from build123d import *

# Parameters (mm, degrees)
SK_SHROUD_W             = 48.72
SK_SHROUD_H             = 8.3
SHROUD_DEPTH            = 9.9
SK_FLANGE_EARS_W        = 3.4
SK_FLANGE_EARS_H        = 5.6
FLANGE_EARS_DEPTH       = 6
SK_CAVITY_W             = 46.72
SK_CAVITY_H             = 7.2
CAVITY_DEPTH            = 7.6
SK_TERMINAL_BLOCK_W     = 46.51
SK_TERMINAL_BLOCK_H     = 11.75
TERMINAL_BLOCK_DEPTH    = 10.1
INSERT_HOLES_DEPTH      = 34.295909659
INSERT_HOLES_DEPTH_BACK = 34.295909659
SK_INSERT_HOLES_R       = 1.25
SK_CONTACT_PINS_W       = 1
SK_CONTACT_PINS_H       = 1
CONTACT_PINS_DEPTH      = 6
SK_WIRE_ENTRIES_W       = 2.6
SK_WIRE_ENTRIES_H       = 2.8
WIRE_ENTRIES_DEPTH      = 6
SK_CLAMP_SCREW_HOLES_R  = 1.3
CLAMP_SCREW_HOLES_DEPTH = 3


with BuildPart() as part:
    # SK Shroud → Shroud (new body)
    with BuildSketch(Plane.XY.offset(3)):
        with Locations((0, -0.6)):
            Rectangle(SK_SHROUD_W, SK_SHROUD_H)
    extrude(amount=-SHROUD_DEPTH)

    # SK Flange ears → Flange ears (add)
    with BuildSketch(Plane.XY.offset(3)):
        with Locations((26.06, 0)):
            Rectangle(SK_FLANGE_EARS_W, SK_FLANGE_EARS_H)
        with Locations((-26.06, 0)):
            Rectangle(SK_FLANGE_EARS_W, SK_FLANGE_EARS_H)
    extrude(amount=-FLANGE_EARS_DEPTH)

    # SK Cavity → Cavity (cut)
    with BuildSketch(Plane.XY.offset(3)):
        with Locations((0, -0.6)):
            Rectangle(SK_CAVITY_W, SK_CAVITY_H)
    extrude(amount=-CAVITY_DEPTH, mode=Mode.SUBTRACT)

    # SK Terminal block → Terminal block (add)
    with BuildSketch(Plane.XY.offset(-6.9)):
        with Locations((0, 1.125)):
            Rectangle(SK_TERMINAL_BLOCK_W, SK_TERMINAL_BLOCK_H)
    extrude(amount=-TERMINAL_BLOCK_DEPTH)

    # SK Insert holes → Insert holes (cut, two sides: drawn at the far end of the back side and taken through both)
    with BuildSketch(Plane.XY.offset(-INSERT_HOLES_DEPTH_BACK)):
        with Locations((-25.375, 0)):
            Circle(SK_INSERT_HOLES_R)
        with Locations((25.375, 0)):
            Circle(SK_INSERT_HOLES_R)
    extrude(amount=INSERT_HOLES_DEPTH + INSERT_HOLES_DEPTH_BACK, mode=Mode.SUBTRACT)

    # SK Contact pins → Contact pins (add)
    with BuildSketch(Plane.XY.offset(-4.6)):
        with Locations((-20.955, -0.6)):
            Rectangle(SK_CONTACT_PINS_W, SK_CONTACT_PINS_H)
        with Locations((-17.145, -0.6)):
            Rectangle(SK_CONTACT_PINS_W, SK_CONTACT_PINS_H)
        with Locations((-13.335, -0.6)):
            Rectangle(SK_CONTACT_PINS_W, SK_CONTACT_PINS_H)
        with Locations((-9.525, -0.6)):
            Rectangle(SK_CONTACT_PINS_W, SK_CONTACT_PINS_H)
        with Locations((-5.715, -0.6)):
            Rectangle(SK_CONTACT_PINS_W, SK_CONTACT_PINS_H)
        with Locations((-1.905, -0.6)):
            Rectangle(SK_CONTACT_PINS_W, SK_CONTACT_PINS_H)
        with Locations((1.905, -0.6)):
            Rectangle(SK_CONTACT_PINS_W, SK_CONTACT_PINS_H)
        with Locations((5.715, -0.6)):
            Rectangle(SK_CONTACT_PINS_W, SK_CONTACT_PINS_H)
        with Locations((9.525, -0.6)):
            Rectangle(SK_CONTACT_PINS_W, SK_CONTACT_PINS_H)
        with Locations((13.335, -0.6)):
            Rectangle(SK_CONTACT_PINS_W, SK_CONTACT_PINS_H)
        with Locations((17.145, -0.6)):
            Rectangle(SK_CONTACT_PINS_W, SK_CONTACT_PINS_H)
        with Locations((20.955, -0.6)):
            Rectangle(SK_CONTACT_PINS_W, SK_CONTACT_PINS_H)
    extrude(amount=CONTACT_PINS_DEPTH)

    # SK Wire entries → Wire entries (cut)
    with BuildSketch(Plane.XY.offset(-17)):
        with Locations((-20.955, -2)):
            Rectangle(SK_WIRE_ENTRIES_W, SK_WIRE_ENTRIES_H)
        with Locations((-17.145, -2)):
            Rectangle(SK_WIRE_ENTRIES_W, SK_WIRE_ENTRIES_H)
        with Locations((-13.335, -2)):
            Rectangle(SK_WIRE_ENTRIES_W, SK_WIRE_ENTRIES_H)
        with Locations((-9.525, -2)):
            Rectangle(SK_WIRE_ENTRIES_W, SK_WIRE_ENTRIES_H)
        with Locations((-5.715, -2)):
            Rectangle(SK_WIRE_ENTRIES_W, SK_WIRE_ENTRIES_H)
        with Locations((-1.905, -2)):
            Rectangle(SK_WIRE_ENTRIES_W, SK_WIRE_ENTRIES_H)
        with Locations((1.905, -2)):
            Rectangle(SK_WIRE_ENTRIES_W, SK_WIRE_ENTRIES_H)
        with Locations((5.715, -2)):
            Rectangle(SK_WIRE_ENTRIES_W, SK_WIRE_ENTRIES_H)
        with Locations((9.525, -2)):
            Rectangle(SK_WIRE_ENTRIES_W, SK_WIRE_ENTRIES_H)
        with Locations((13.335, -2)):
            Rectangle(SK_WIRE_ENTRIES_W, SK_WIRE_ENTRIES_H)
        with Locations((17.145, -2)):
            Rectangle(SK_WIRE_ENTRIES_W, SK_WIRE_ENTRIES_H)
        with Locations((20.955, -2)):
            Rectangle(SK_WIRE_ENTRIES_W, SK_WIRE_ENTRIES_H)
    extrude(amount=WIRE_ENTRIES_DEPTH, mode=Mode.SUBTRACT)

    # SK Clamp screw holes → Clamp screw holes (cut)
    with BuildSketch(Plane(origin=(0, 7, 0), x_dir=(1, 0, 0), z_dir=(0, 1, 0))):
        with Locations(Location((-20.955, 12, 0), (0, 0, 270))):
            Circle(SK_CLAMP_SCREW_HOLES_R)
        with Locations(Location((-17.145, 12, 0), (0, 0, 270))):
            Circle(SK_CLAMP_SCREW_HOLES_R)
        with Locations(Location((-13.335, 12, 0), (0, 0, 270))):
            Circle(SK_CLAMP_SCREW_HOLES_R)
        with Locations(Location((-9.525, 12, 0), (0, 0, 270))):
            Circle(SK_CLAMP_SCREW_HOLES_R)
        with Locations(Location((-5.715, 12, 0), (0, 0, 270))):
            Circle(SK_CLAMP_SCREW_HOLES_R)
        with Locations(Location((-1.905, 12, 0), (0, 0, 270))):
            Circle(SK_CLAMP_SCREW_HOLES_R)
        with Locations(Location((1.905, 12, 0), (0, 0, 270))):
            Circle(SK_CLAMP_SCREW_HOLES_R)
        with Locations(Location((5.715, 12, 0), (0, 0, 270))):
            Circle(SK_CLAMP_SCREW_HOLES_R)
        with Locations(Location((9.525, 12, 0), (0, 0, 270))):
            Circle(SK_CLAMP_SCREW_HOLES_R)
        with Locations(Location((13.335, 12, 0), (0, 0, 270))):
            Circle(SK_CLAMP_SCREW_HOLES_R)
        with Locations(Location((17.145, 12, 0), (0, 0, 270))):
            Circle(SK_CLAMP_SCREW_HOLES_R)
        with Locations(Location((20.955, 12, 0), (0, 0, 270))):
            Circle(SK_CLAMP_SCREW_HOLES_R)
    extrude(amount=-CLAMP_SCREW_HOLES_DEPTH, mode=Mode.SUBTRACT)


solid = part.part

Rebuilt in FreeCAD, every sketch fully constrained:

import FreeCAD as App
import Part
import Sketcher
from FreeCAD import Vector
Q = App.Units.Quantity

doc = App.newDocument("Part")
params = doc.addObject("Spreadsheet::Sheet", "Params")
for row, (alias, value) in enumerate([
    ("sketch1_height", "8.3 mm"),
    ("sketch1_width", "48.72 mm"),
    ("pad1_length", "9.9 mm"),
    ("sketch2_width", "3.4 mm"),
    ("sketch2_height", "5.6 mm"),
    ("pad2_length", "6 mm"),
    ("sketch3_height", "7.2 mm"),
    ("sketch3_width", "46.72 mm"),
    ("pocket1_length", "7.6 mm"),
    ("sketch4_width", "46.51 mm"),
    ("sketch4_height", "11.75 mm"),
    ("pad3_length", "10.1 mm"),
    ("sketch5_diameter", "2.5 mm"),
    ("sketch6_width", "1 mm"),
    ("pad4_length", "6 mm"),
    ("sketch7_width", "2.6 mm"),
    ("sketch7_height", "2.8 mm"),
    ("pocket3_length", "6 mm"),
    ("sketch8_diameter", "2.6 mm"),
    ("pocket4_length", "3 mm"),
], start=1):
    params.set(f"A{row}", alias)
    params.set(f"B{row}", "=" + value)
    params.setAlias(f"B{row}", alias)

body = doc.addObject("PartDesign::Body", "Body")

sketch1 = body.newObject("Sketcher::SketchObject", "Sketch")
sketch1.AttachmentSupport = (doc.getObject("XY_Plane"), [""])
sketch1.MapMode = "FlatFace"
sketch1.AttachmentOffset = App.Placement(Vector(0, 0, 3), App.Rotation())
sketch1.addGeometry(Part.LineSegment(Vector(-24, 4, 0), Vector(-24, -5, 0)), False)
sketch1.addGeometry(Part.LineSegment(Vector(-24, -5, 0), Vector(24, -5, 0)), False)
sketch1.addGeometry(Part.LineSegment(Vector(24, -5, 0), Vector(24, 4, 0)), False)
sketch1.addGeometry(Part.LineSegment(Vector(24, 4, 0), Vector(-24, 4, 0)), False)
sketch1.addConstraint(Sketcher.Constraint("Coincident", 0, 2, 1, 1))
sketch1.addConstraint(Sketcher.Constraint("Coincident", 1, 2, 2, 1))
sketch1.addConstraint(Sketcher.Constraint("Coincident", 2, 2, 3, 1))
sketch1.addConstraint(Sketcher.Constraint("Coincident", 3, 2, 0, 1))
sketch1.addConstraint(Sketcher.Constraint("Vertical", 0))
sketch1.addConstraint(Sketcher.Constraint("Horizontal", 1))
sketch1.addConstraint(Sketcher.Constraint("Vertical", 2))
sketch1.addConstraint(Sketcher.Constraint("Horizontal", 3))
sketch1.addConstraint(Sketcher.Constraint("DistanceY", 0, 2, 0, 1, Q("8.3 mm")))
sketch1.addConstraint(Sketcher.Constraint("DistanceX", 1, 1, 1, 2, Q("48.72 mm")))
sketch1.addConstraint(Sketcher.Constraint("DistanceX", 0, 2, -1, 1, Q("24.36 mm")))
sketch1.addConstraint(Sketcher.Constraint("DistanceY", 0, 2, -1, 1, Q("4.75 mm")))
sketch1.setExpression("Constraints[8]", "Params.sketch1_height")
sketch1.setExpression("Constraints[9]", "Params.sketch1_width")
pad1 = body.newObject("PartDesign::Pad", "Pad")
pad1.Profile = sketch1
pad1.setExpression("Length", "Params.pad1_length")
pad1.Reversed = True

sketch2 = body.newObject("Sketcher::SketchObject", "Sketch001")
sketch2.AttachmentSupport = (doc.getObject("XY_Plane"), [""])
sketch2.MapMode = "FlatFace"
sketch2.AttachmentOffset = App.Placement(Vector(0, 0, 3), App.Rotation())
sketch2.addGeometry(Part.LineSegment(Vector(24.4, 2.8, 0), Vector(24.4, -2.8, 0)), False)
sketch2.addGeometry(Part.LineSegment(Vector(24.4, -2.8, 0), Vector(27.8, -2.8, 0)), False)
sketch2.addGeometry(Part.LineSegment(Vector(27.8, -2.8, 0), Vector(27.8, 2.8, 0)), False)
sketch2.addGeometry(Part.LineSegment(Vector(27.8, 2.8, 0), Vector(24.4, 2.8, 0)), False)
sketch2.addGeometry(Part.LineSegment(Vector(-27.8, 2.8, 0), Vector(-27.8, -2.8, 0)), False)
sketch2.addGeometry(Part.LineSegment(Vector(-27.8, -2.8, 0), Vector(-24.4, -2.8, 0)), False)
sketch2.addGeometry(Part.LineSegment(Vector(-24.4, -2.8, 0), Vector(-24.4, 2.8, 0)), False)
sketch2.addGeometry(Part.LineSegment(Vector(-24.4, 2.8, 0), Vector(-27.8, 2.8, 0)), False)
sketch2.addConstraint(Sketcher.Constraint("Coincident", 0, 2, 1, 1))
sketch2.addConstraint(Sketcher.Constraint("Coincident", 1, 2, 2, 1))
sketch2.addConstraint(Sketcher.Constraint("Coincident", 2, 2, 3, 1))
sketch2.addConstraint(Sketcher.Constraint("Coincident", 3, 2, 0, 1))
sketch2.addConstraint(Sketcher.Constraint("Coincident", 4, 2, 5, 1))
sketch2.addConstraint(Sketcher.Constraint("Coincident", 5, 2, 6, 1))
sketch2.addConstraint(Sketcher.Constraint("Coincident", 6, 2, 7, 1))
sketch2.addConstraint(Sketcher.Constraint("Coincident", 7, 2, 4, 1))
sketch2.addConstraint(Sketcher.Constraint("Vertical", 0))
sketch2.addConstraint(Sketcher.Constraint("Horizontal", 1))
sketch2.addConstraint(Sketcher.Constraint("Vertical", 2))
sketch2.addConstraint(Sketcher.Constraint("Horizontal", 3))
sketch2.addConstraint(Sketcher.Constraint("Vertical", 4))
sketch2.addConstraint(Sketcher.Constraint("Horizontal", 5))
sketch2.addConstraint(Sketcher.Constraint("Vertical", 6))
sketch2.addConstraint(Sketcher.Constraint("Horizontal", 7))
sketch2.addConstraint(Sketcher.Constraint("Symmetric", 2, 2, 4, 2, -1, 1))
sketch2.addConstraint(Sketcher.Constraint("Symmetric", 0, 2, 6, 2, -1, 1))
sketch2.addConstraint(Sketcher.Constraint("Horizontal", 1, 2, 4, 2))
sketch2.addConstraint(Sketcher.Constraint("DistanceX", 1, 1, 1, 2, Q("3.4 mm")))
sketch2.addConstraint(Sketcher.Constraint("DistanceY", 0, 2, 0, 1, Q("5.6 mm")))
sketch2.addConstraint(Sketcher.Constraint("DistanceX", -1, 1, 0, 2, Q("24.36 mm")))
sketch2.setExpression("Constraints[19]", "Params.sketch2_width")
sketch2.setExpression("Constraints[20]", "Params.sketch2_height")
pad2 = body.newObject("PartDesign::Pad", "Pad001")
pad2.Profile = sketch2
pad2.setExpression("Length", "Params.pad2_length")
pad2.Reversed = True

sketch3 = body.newObject("Sketcher::SketchObject", "Sketch002")
sketch3.AttachmentSupport = (doc.getObject("XY_Plane"), [""])
sketch3.MapMode = "FlatFace"
sketch3.AttachmentOffset = App.Placement(Vector(0, 0, 3), App.Rotation())
sketch3.addGeometry(Part.LineSegment(Vector(-23, 3, 0), Vector(-23, -4, 0)), False)
sketch3.addGeometry(Part.LineSegment(Vector(-23, -4, 0), Vector(23, -4, 0)), False)
sketch3.addGeometry(Part.LineSegment(Vector(23, -4, 0), Vector(23, 3, 0)), False)
sketch3.addGeometry(Part.LineSegment(Vector(23, 3, 0), Vector(-23, 3, 0)), False)
sketch3.addConstraint(Sketcher.Constraint("Coincident", 0, 2, 1, 1))
sketch3.addConstraint(Sketcher.Constraint("Coincident", 1, 2, 2, 1))
sketch3.addConstraint(Sketcher.Constraint("Coincident", 2, 2, 3, 1))
sketch3.addConstraint(Sketcher.Constraint("Coincident", 3, 2, 0, 1))
sketch3.addConstraint(Sketcher.Constraint("Vertical", 0))
sketch3.addConstraint(Sketcher.Constraint("Horizontal", 1))
sketch3.addConstraint(Sketcher.Constraint("Vertical", 2))
sketch3.addConstraint(Sketcher.Constraint("Horizontal", 3))
sketch3.addConstraint(Sketcher.Constraint("DistanceY", 0, 2, 0, 1, Q("7.2 mm")))
sketch3.addConstraint(Sketcher.Constraint("DistanceY", -1, 1, 2, 2, Q("3 mm")))
sketch3.addConstraint(Sketcher.Constraint("DistanceX", 1, 1, 1, 2, Q("46.72 mm")))
sketch3.addConstraint(Sketcher.Constraint("DistanceX", 0, 2, -1, 1, Q("23.36 mm")))
sketch3.setExpression("Constraints[8]", "Params.sketch3_height")
sketch3.setExpression("Constraints[10]", "Params.sketch3_width")
pocket1 = body.newObject("PartDesign::Pocket", "Pocket")
pocket1.Profile = sketch3
pocket1.setExpression("Length", "Params.pocket1_length")

sketch4 = body.newObject("Sketcher::SketchObject", "Sketch003")
sketch4.AttachmentSupport = (doc.getObject("XY_Plane"), [""])
sketch4.MapMode = "FlatFace"
sketch4.AttachmentOffset = App.Placement(Vector(0, 0, -6.9), App.Rotation())
sketch4.addGeometry(Part.LineSegment(Vector(-23, 7, 0), Vector(-23, -5, 0)), False)
sketch4.addGeometry(Part.LineSegment(Vector(-23, -5, 0), Vector(23, -5, 0)), False)
sketch4.addGeometry(Part.LineSegment(Vector(23, -5, 0), Vector(23, 7, 0)), False)
sketch4.addGeometry(Part.LineSegment(Vector(23, 7, 0), Vector(-23, 7, 0)), False)
sketch4.addConstraint(Sketcher.Constraint("Coincident", 0, 2, 1, 1))
sketch4.addConstraint(Sketcher.Constraint("Coincident", 1, 2, 2, 1))
sketch4.addConstraint(Sketcher.Constraint("Coincident", 2, 2, 3, 1))
sketch4.addConstraint(Sketcher.Constraint("Coincident", 3, 2, 0, 1))
sketch4.addConstraint(Sketcher.Constraint("Vertical", 0))
sketch4.addConstraint(Sketcher.Constraint("Horizontal", 1))
sketch4.addConstraint(Sketcher.Constraint("Vertical", 2))
sketch4.addConstraint(Sketcher.Constraint("Horizontal", 3))
sketch4.addConstraint(Sketcher.Constraint("DistanceY", -1, 1, 2, 2, Q("7 mm")))
sketch4.addConstraint(Sketcher.Constraint("DistanceX", 1, 1, 1, 2, Q("46.51 mm")))
sketch4.addConstraint(Sketcher.Constraint("DistanceY", 0, 2, 0, 1, Q("11.75 mm")))
sketch4.addConstraint(Sketcher.Constraint("DistanceX", 0, 2, -1, 1, Q("23.255 mm")))
sketch4.setExpression("Constraints[9]", "Params.sketch4_width")
sketch4.setExpression("Constraints[10]", "Params.sketch4_height")
pad3 = body.newObject("PartDesign::Pad", "Pad002")
pad3.Profile = sketch4
pad3.setExpression("Length", "Params.pad3_length")
pad3.Reversed = True

sketch5 = body.newObject("Sketcher::SketchObject", "Sketch004")
sketch5.AttachmentSupport = (doc.getObject("XY_Plane"), [""])
sketch5.MapMode = "FlatFace"
sketch5.addGeometry(Part.Circle(Vector(-25.4, 0, 0), Vector(0, 0, 1), 1.2), False)
sketch5.addGeometry(Part.Circle(Vector(25.4, 0, 0), Vector(0, 0, 1), 1.2), False)
sketch5.addConstraint(Sketcher.Constraint("Equal", 0, 1))
sketch5.addConstraint(Sketcher.Constraint("Symmetric", 0, 3, 1, 3, -1, 1))
sketch5.addConstraint(Sketcher.Constraint("PointOnObject", 0, 3, -1))
sketch5.addConstraint(Sketcher.Constraint("Diameter", 0, Q("2.5 mm")))
sketch5.addConstraint(Sketcher.Constraint("DistanceX", 0, 3, 1, 3, Q("50.75 mm")))
sketch5.setExpression("Constraints[3]", "Params.sketch5_diameter")
pocket2 = body.newObject("PartDesign::Pocket", "Pocket001")
pocket2.Profile = sketch5
pocket2.Type = "ThroughAll"
pocket2.Midplane = True

sketch6 = body.newObject("Sketcher::SketchObject", "Sketch005")
sketch6.AttachmentSupport = (doc.getObject("XY_Plane"), [""])
sketch6.MapMode = "FlatFace"
sketch6.AttachmentOffset = App.Placement(Vector(0, 0, -4.6), App.Rotation())
sketch6.addGeometry(Part.LineSegment(Vector(-21.5, -0.1, 0), Vector(-21.5, -1.1, 0)), False)
sketch6.addGeometry(Part.LineSegment(Vector(-21.5, -1.1, 0), Vector(-20.5, -1.1, 0)), False)
sketch6.addGeometry(Part.LineSegment(Vector(-20.5, -1.1, 0), Vector(-20.5, -0.1, 0)), False)
sketch6.addGeometry(Part.LineSegment(Vector(-20.5, -0.1, 0), Vector(-21.5, -0.1, 0)), False)
sketch6.addGeometry(Part.LineSegment(Vector(-17.6, -0.1, 0), Vector(-17.6, -1.1, 0)), False)
sketch6.addGeometry(Part.LineSegment(Vector(-17.6, -1.1, 0), Vector(-16.6, -1.1, 0)), False)
sketch6.addGeometry(Part.LineSegment(Vector(-16.6, -1.1, 0), Vector(-16.6, -0.1, 0)), False)
sketch6.addGeometry(Part.LineSegment(Vector(-16.6, -0.1, 0), Vector(-17.6, -0.1, 0)), False)
sketch6.addGeometry(Part.LineSegment(Vector(-13.8, -0.1, 0), Vector(-13.8, -1.1, 0)), False)
sketch6.addGeometry(Part.LineSegment(Vector(-13.8, -1.1, 0), Vector(-12.8, -1.1, 0)), False)
sketch6.addGeometry(Part.LineSegment(Vector(-12.8, -1.1, 0), Vector(-12.8, -0.1, 0)), False)
sketch6.addGeometry(Part.LineSegment(Vector(-12.8, -0.1, 0), Vector(-13.8, -0.1, 0)), False)
sketch6.addGeometry(Part.LineSegment(Vector(-10, -0.1, 0), Vector(-10, -1.1, 0)), False)
sketch6.addGeometry(Part.LineSegment(Vector(-10, -1.1, 0), Vector(-9, -1.1, 0)), False)
sketch6.addGeometry(Part.LineSegment(Vector(-9, -1.1, 0), Vector(-9, -0.1, 0)), False)
sketch6.addGeometry(Part.LineSegment(Vector(-9, -0.1, 0), Vector(-10, -0.1, 0)), False)
sketch6.addGeometry(Part.LineSegment(Vector(-6.2, -0.1, 0), Vector(-6.2, -1.1, 0)), False)
sketch6.addGeometry(Part.LineSegment(Vector(-6.2, -1.1, 0), Vector(-5.2, -1.1, 0)), False)
sketch6.addGeometry(Part.LineSegment(Vector(-5.2, -1.1, 0), Vector(-5.2, -0.1, 0)), False)
sketch6.addGeometry(Part.LineSegment(Vector(-5.2, -0.1, 0), Vector(-6.2, -0.1, 0)), False)
sketch6.addGeometry(Part.LineSegment(Vector(-2.4, -0.1, 0), Vector(-2.4, -1.1, 0)), False)
sketch6.addGeometry(Part.LineSegment(Vector(-2.4, -1.1, 0), Vector(-1.4, -1.1, 0)), False)
sketch6.addGeometry(Part.LineSegment(Vector(-1.4, -1.1, 0), Vector(-1.4, -0.1, 0)), False)
sketch6.addGeometry(Part.LineSegment(Vector(-1.4, -0.1, 0), Vector(-2.4, -0.1, 0)), False)
sketch6.addGeometry(Part.LineSegment(Vector(1.4, -0.1, 0), Vector(1.4, -1.1, 0)), False)
sketch6.addGeometry(Part.LineSegment(Vector(1.4, -1.1, 0), Vector(2.4, -1.1, 0)), False)
sketch6.addGeometry(Part.LineSegment(Vector(2.4, -1.1, 0), Vector(2.4, -0.1, 0)), False)
sketch6.addGeometry(Part.LineSegment(Vector(2.4, -0.1, 0), Vector(1.4, -0.1, 0)), False)
sketch6.addGeometry(Part.LineSegment(Vector(5.2, -0.1, 0), Vector(5.2, -1.1, 0)), False)
sketch6.addGeometry(Part.LineSegment(Vector(5.2, -1.1, 0), Vector(6.2, -1.1, 0)), False)
sketch6.addGeometry(Part.LineSegment(Vector(6.2, -1.1, 0), Vector(6.2, -0.1, 0)), False)
sketch6.addGeometry(Part.LineSegment(Vector(6.2, -0.1, 0), Vector(5.2, -0.1, 0)), False)
sketch6.addGeometry(Part.LineSegment(Vector(9, -0.1, 0), Vector(9, -1.1, 0)), False)
sketch6.addGeometry(Part.LineSegment(Vector(9, -1.1, 0), Vector(10, -1.1, 0)), False)
sketch6.addGeometry(Part.LineSegment(Vector(10, -1.1, 0), Vector(10, -0.1, 0)), False)
sketch6.addGeometry(Part.LineSegment(Vector(10, -0.1, 0), Vector(9, -0.1, 0)), False)
sketch6.addGeometry(Part.LineSegment(Vector(12.8, -0.1, 0), Vector(12.8, -1.1, 0)), False)
sketch6.addGeometry(Part.LineSegment(Vector(12.8, -1.1, 0), Vector(13.8, -1.1, 0)), False)
sketch6.addGeometry(Part.LineSegment(Vector(13.8, -1.1, 0), Vector(13.8, -0.1, 0)), False)
sketch6.addGeometry(Part.LineSegment(Vector(13.8, -0.1, 0), Vector(12.8, -0.1, 0)), False)
sketch6.addGeometry(Part.LineSegment(Vector(16.6, -0.1, 0), Vector(16.6, -1.1, 0)), False)
sketch6.addGeometry(Part.LineSegment(Vector(16.6, -1.1, 0), Vector(17.6, -1.1, 0)), False)
sketch6.addGeometry(Part.LineSegment(Vector(17.6, -1.1, 0), Vector(17.6, -0.1, 0)), False)
sketch6.addGeometry(Part.LineSegment(Vector(17.6, -0.1, 0), Vector(16.6, -0.1, 0)), False)
sketch6.addGeometry(Part.LineSegment(Vector(20.5, -0.1, 0), Vector(20.5, -1.1, 0)), False)
sketch6.addGeometry(Part.LineSegment(Vector(20.5, -1.1, 0), Vector(21.5, -1.1, 0)), False)
sketch6.addGeometry(Part.LineSegment(Vector(21.5, -1.1, 0), Vector(21.5, -0.1, 0)), False)
sketch6.addGeometry(Part.LineSegment(Vector(21.5, -0.1, 0), Vector(20.5, -0.1, 0)), False)
sketch6.addConstraint(Sketcher.Constraint("Coincident", 0, 2, 1, 1))
sketch6.addConstraint(Sketcher.Constraint("Coincident", 1, 2, 2, 1))
sketch6.addConstraint(Sketcher.Constraint("Coincident", 2, 2, 3, 1))
sketch6.addConstraint(Sketcher.Constraint("Coincident", 3, 2, 0, 1))
sketch6.addConstraint(Sketcher.Constraint("Coincident", 4, 2, 5, 1))
sketch6.addConstraint(Sketcher.Constraint("Coincident", 5, 2, 6, 1))
sketch6.addConstraint(Sketcher.Constraint("Coincident", 6, 2, 7, 1))
sketch6.addConstraint(Sketcher.Constraint("Coincident", 7, 2, 4, 1))
sketch6.addConstraint(Sketcher.Constraint("Coincident", 8, 2, 9, 1))
sketch6.addConstraint(Sketcher.Constraint("Coincident", 9, 2, 10, 1))
sketch6.addConstraint(Sketcher.Constraint("Coincident", 10, 2, 11, 1))
sketch6.addConstraint(Sketcher.Constraint("Coincident", 11, 2, 8, 1))
sketch6.addConstraint(Sketcher.Constraint("Coincident", 12, 2, 13, 1))
sketch6.addConstraint(Sketcher.Constraint("Coincident", 13, 2, 14, 1))
sketch6.addConstraint(Sketcher.Constraint("Coincident", 14, 2, 15, 1))
sketch6.addConstraint(Sketcher.Constraint("Coincident", 15, 2, 12, 1))
sketch6.addConstraint(Sketcher.Constraint("Coincident", 16, 2, 17, 1))
sketch6.addConstraint(Sketcher.Constraint("Coincident", 17, 2, 18, 1))
sketch6.addConstraint(Sketcher.Constraint("Coincident", 18, 2, 19, 1))
sketch6.addConstraint(Sketcher.Constraint("Coincident", 19, 2, 16, 1))
sketch6.addConstraint(Sketcher.Constraint("Coincident", 20, 2, 21, 1))
sketch6.addConstraint(Sketcher.Constraint("Coincident", 21, 2, 22, 1))
sketch6.addConstraint(Sketcher.Constraint("Coincident", 22, 2, 23, 1))
sketch6.addConstraint(Sketcher.Constraint("Coincident", 23, 2, 20, 1))
sketch6.addConstraint(Sketcher.Constraint("Coincident", 24, 2, 25, 1))
sketch6.addConstraint(Sketcher.Constraint("Coincident", 25, 2, 26, 1))
sketch6.addConstraint(Sketcher.Constraint("Coincident", 26, 2, 27, 1))
sketch6.addConstraint(Sketcher.Constraint("Coincident", 27, 2, 24, 1))
sketch6.addConstraint(Sketcher.Constraint("Coincident", 28, 2, 29, 1))
sketch6.addConstraint(Sketcher.Constraint("Coincident", 29, 2, 30, 1))
sketch6.addConstraint(Sketcher.Constraint("Coincident", 30, 2, 31, 1))
sketch6.addConstraint(Sketcher.Constraint("Coincident", 31, 2, 28, 1))
sketch6.addConstraint(Sketcher.Constraint("Coincident", 32, 2, 33, 1))
sketch6.addConstraint(Sketcher.Constraint("Coincident", 33, 2, 34, 1))
sketch6.addConstraint(Sketcher.Constraint("Coincident", 34, 2, 35, 1))
sketch6.addConstraint(Sketcher.Constraint("Coincident", 35, 2, 32, 1))
sketch6.addConstraint(Sketcher.Constraint("Coincident", 36, 2, 37, 1))
sketch6.addConstraint(Sketcher.Constraint("Coincident", 37, 2, 38, 1))
sketch6.addConstraint(Sketcher.Constraint("Coincident", 38, 2, 39, 1))
sketch6.addConstraint(Sketcher.Constraint("Coincident", 39, 2, 36, 1))
sketch6.addConstraint(Sketcher.Constraint("Coincident", 40, 2, 41, 1))
sketch6.addConstraint(Sketcher.Constraint("Coincident", 41, 2, 42, 1))
sketch6.addConstraint(Sketcher.Constraint("Coincident", 42, 2, 43, 1))
sketch6.addConstraint(Sketcher.Constraint("Coincident", 43, 2, 40, 1))
sketch6.addConstraint(Sketcher.Constraint("Coincident", 44, 2, 45, 1))
sketch6.addConstraint(Sketcher.Constraint("Coincident", 45, 2, 46, 1))
sketch6.addConstraint(Sketcher.Constraint("Coincident", 46, 2, 47, 1))
sketch6.addConstraint(Sketcher.Constraint("Coincident", 47, 2, 44, 1))
sketch6.addConstraint(Sketcher.Constraint("Vertical", 0))
sketch6.addConstraint(Sketcher.Constraint("Horizontal", 1))
sketch6.addConstraint(Sketcher.Constraint("Vertical", 2))
sketch6.addConstraint(Sketcher.Constraint("Horizontal", 3))
sketch6.addConstraint(Sketcher.Constraint("Vertical", 4))
sketch6.addConstraint(Sketcher.Constraint("Horizontal", 5))
sketch6.addConstraint(Sketcher.Constraint("Vertical", 6))
sketch6.addConstraint(Sketcher.Constraint("Horizontal", 7))
sketch6.addConstraint(Sketcher.Constraint("Vertical", 8))
sketch6.addConstraint(Sketcher.Constraint("Horizontal", 9))
sketch6.addConstraint(Sketcher.Constraint("Vertical", 10))
sketch6.addConstraint(Sketcher.Constraint("Horizontal", 11))
sketch6.addConstraint(Sketcher.Constraint("Vertical", 12))
sketch6.addConstraint(Sketcher.Constraint("Horizontal", 13))
sketch6.addConstraint(Sketcher.Constraint("Vertical", 14))
sketch6.addConstraint(Sketcher.Constraint("Horizontal", 15))
sketch6.addConstraint(Sketcher.Constraint("Vertical", 16))
sketch6.addConstraint(Sketcher.Constraint("Horizontal", 17))
sketch6.addConstraint(Sketcher.Constraint("Vertical", 18))
sketch6.addConstraint(Sketcher.Constraint("Horizontal", 19))
sketch6.addConstraint(Sketcher.Constraint("Vertical", 20))
sketch6.addConstraint(Sketcher.Constraint("Horizontal", 21))
sketch6.addConstraint(Sketcher.Constraint("Vertical", 22))
sketch6.addConstraint(Sketcher.Constraint("Horizontal", 23))
sketch6.addConstraint(Sketcher.Constraint("Vertical", 24))
sketch6.addConstraint(Sketcher.Constraint("Horizontal", 25))
sketch6.addConstraint(Sketcher.Constraint("Vertical", 26))
sketch6.addConstraint(Sketcher.Constraint("Horizontal", 27))
sketch6.addConstraint(Sketcher.Constraint("Vertical", 28))
sketch6.addConstraint(Sketcher.Constraint("Horizontal", 29))
sketch6.addConstraint(Sketcher.Constraint("Vertical", 30))
sketch6.addConstraint(Sketcher.Constraint("Horizontal", 31))
sketch6.addConstraint(Sketcher.Constraint("Vertical", 32))
sketch6.addConstraint(Sketcher.Constraint("Horizontal", 33))
sketch6.addConstraint(Sketcher.Constraint("Vertical", 34))
sketch6.addConstraint(Sketcher.Constraint("Horizontal", 35))
sketch6.addConstraint(Sketcher.Constraint("Vertical", 36))
sketch6.addConstraint(Sketcher.Constraint("Horizontal", 37))
sketch6.addConstraint(Sketcher.Constraint("Vertical", 38))
sketch6.addConstraint(Sketcher.Constraint("Horizontal", 39))
sketch6.addConstraint(Sketcher.Constraint("Vertical", 40))
sketch6.addConstraint(Sketcher.Constraint("Horizontal", 41))
sketch6.addConstraint(Sketcher.Constraint("Vertical", 42))
sketch6.addConstraint(Sketcher.Constraint("Horizontal", 43))
sketch6.addConstraint(Sketcher.Constraint("Vertical", 44))
sketch6.addConstraint(Sketcher.Constraint("Horizontal", 45))
sketch6.addConstraint(Sketcher.Constraint("Vertical", 46))
sketch6.addConstraint(Sketcher.Constraint("Horizontal", 47))
sketch6.addConstraint(Sketcher.Constraint("Symmetric", 21, 2, 24, 2, -2))
sketch6.addConstraint(Sketcher.Constraint("Symmetric", 23, 2, 26, 2, -2))
sketch6.addConstraint(Sketcher.Constraint("Symmetric", 17, 2, 28, 2, -2))
sketch6.addConstraint(Sketcher.Constraint("Symmetric", 19, 2, 30, 2, -2))
sketch6.addConstraint(Sketcher.Constraint("Symmetric", 13, 2, 32, 2, -2))
sketch6.addConstraint(Sketcher.Constraint("Symmetric", 15, 2, 34, 2, -2))
sketch6.addConstraint(Sketcher.Constraint("Symmetric", 9, 2, 36, 2, -2))
sketch6.addConstraint(Sketcher.Constraint("Symmetric", 11, 2, 38, 2, -2))
sketch6.addConstraint(Sketcher.Constraint("Symmetric", 5, 2, 40, 2, -2))
sketch6.addConstraint(Sketcher.Constraint("Symmetric", 7, 2, 42, 2, -2))
sketch6.addConstraint(Sketcher.Constraint("Symmetric", 1, 2, 44, 2, -2))
sketch6.addConstraint(Sketcher.Constraint("Symmetric", 3, 2, 46, 2, -2))
sketch6.addConstraint(Sketcher.Constraint("Horizontal", 1, 2, 4, 2))
sketch6.addConstraint(Sketcher.Constraint("Horizontal", 3, 2, 6, 2))
sketch6.addConstraint(Sketcher.Constraint("Horizontal", 5, 2, 8, 2))
sketch6.addConstraint(Sketcher.Constraint("Horizontal", 7, 2, 10, 2))
sketch6.addConstraint(Sketcher.Constraint("Horizontal", 9, 2, 12, 2))
sketch6.addConstraint(Sketcher.Constraint("Horizontal", 11, 2, 14, 2))
sketch6.addConstraint(Sketcher.Constraint("Horizontal", 13, 2, 16, 2))
sketch6.addConstraint(Sketcher.Constraint("Horizontal", 15, 2, 18, 2))
sketch6.addConstraint(Sketcher.Constraint("Horizontal", 17, 2, 20, 2))
sketch6.addConstraint(Sketcher.Constraint("Horizontal", 19, 2, 22, 2))
sketch6.addConstraint(Sketcher.Constraint("Equal", 3, 5))
sketch6.addConstraint(Sketcher.Constraint("Equal", 7, 9))
sketch6.addConstraint(Sketcher.Constraint("Equal", 11, 13))
sketch6.addConstraint(Sketcher.Constraint("Equal", 15, 17))
sketch6.addConstraint(Sketcher.Constraint("Equal", 19, 21))
sketch6.addConstraint(Sketcher.Constraint("Equal", 47, 0))
sketch6.addConstraint(Sketcher.Constraint("DistanceX", 1, 1, 1, 2, Q("1 mm")))
sketch6.addConstraint(Sketcher.Constraint("DistanceY", 0, 2, -1, 1, Q("1.1 mm")))
sketch6.addConstraint(Sketcher.Constraint("DistanceX", 1, 2, 4, 2, Q("2.81 mm")))
sketch6.addConstraint(Sketcher.Constraint("DistanceX", 5, 2, 8, 2, Q("2.81 mm")))
sketch6.addConstraint(Sketcher.Constraint("DistanceX", 9, 2, 12, 2, Q("2.81 mm")))
sketch6.addConstraint(Sketcher.Constraint("DistanceX", 13, 2, 16, 2, Q("2.81 mm")))
sketch6.addConstraint(Sketcher.Constraint("DistanceX", 17, 2, 20, 2, Q("2.81 mm")))
sketch6.addConstraint(Sketcher.Constraint("DistanceX", 21, 2, 24, 2, Q("2.81 mm")))
sketch6.setExpression("Constraints[124]", "Params.sketch6_width")
pad4 = body.newObject("PartDesign::Pad", "Pad003")
pad4.Profile = sketch6
pad4.setExpression("Length", "Params.pad4_length")

sketch7 = body.newObject("Sketcher::SketchObject", "Sketch006")
sketch7.AttachmentSupport = (doc.getObject("XY_Plane"), [""])
sketch7.MapMode = "FlatFace"
sketch7.AttachmentOffset = App.Placement(Vector(0, 0, -17), App.Rotation())
sketch7.addGeometry(Part.LineSegment(Vector(-22.3, -0.6, 0), Vector(-22.3, -3.4, 0)), False)
sketch7.addGeometry(Part.LineSegment(Vector(-22.3, -3.4, 0), Vector(-19.7, -3.4, 0)), False)
sketch7.addGeometry(Part.LineSegment(Vector(-19.7, -3.4, 0), Vector(-19.7, -0.6, 0)), False)
sketch7.addGeometry(Part.LineSegment(Vector(-19.7, -0.6, 0), Vector(-22.3, -0.6, 0)), False)
sketch7.addGeometry(Part.LineSegment(Vector(-18.4, -0.6, 0), Vector(-18.4, -3.4, 0)), False)
sketch7.addGeometry(Part.LineSegment(Vector(-18.4, -3.4, 0), Vector(-15.8, -3.4, 0)), False)
sketch7.addGeometry(Part.LineSegment(Vector(-15.8, -3.4, 0), Vector(-15.8, -0.6, 0)), False)
sketch7.addGeometry(Part.LineSegment(Vector(-15.8, -0.6, 0), Vector(-18.4, -0.6, 0)), False)
sketch7.addGeometry(Part.LineSegment(Vector(-14.6, -0.6, 0), Vector(-14.6, -3.4, 0)), False)
sketch7.addGeometry(Part.LineSegment(Vector(-14.6, -3.4, 0), Vector(-12, -3.4, 0)), False)
sketch7.addGeometry(Part.LineSegment(Vector(-12, -3.4, 0), Vector(-12, -0.6, 0)), False)
sketch7.addGeometry(Part.LineSegment(Vector(-12, -0.6, 0), Vector(-14.6, -0.6, 0)), False)
sketch7.addGeometry(Part.LineSegment(Vector(-10.8, -0.6, 0), Vector(-10.8, -3.4, 0)), False)
sketch7.addGeometry(Part.LineSegment(Vector(-10.8, -3.4, 0), Vector(-8.2, -3.4, 0)), False)
sketch7.addGeometry(Part.LineSegment(Vector(-8.2, -3.4, 0), Vector(-8.2, -0.6, 0)), False)
sketch7.addGeometry(Part.LineSegment(Vector(-8.2, -0.6, 0), Vector(-10.8, -0.6, 0)), False)
sketch7.addGeometry(Part.LineSegment(Vector(-7, -0.6, 0), Vector(-7, -3.4, 0)), False)
sketch7.addGeometry(Part.LineSegment(Vector(-7, -3.4, 0), Vector(-4.4, -3.4, 0)), False)
sketch7.addGeometry(Part.LineSegment(Vector(-4.4, -3.4, 0), Vector(-4.4, -0.6, 0)), False)
sketch7.addGeometry(Part.LineSegment(Vector(-4.4, -0.6, 0), Vector(-7, -0.6, 0)), False)
sketch7.addGeometry(Part.LineSegment(Vector(-3.2, -0.6, 0), Vector(-3.2, -3.4, 0)), False)
sketch7.addGeometry(Part.LineSegment(Vector(-3.2, -3.4, 0), Vector(-0.6, -3.4, 0)), False)
sketch7.addGeometry(Part.LineSegment(Vector(-0.6, -3.4, 0), Vector(-0.6, -0.6, 0)), False)
sketch7.addGeometry(Part.LineSegment(Vector(-0.6, -0.6, 0), Vector(-3.2, -0.6, 0)), False)
sketch7.addGeometry(Part.LineSegment(Vector(0.6, -0.6, 0), Vector(0.6, -3.4, 0)), False)
sketch7.addGeometry(Part.LineSegment(Vector(0.6, -3.4, 0), Vector(3.2, -3.4, 0)), False)
sketch7.addGeometry(Part.LineSegment(Vector(3.2, -3.4, 0), Vector(3.2, -0.6, 0)), False)
sketch7.addGeometry(Part.LineSegment(Vector(3.2, -0.6, 0), Vector(0.6, -0.6, 0)), False)
sketch7.addGeometry(Part.LineSegment(Vector(4.4, -0.6, 0), Vector(4.4, -3.4, 0)), False)
sketch7.addGeometry(Part.LineSegment(Vector(4.4, -3.4, 0), Vector(7, -3.4, 0)), False)
sketch7.addGeometry(Part.LineSegment(Vector(7, -3.4, 0), Vector(7, -0.6, 0)), False)
sketch7.addGeometry(Part.LineSegment(Vector(7, -0.6, 0), Vector(4.4, -0.6, 0)), False)
sketch7.addGeometry(Part.LineSegment(Vector(8.2, -0.6, 0), Vector(8.2, -3.4, 0)), False)
sketch7.addGeometry(Part.LineSegment(Vector(8.2, -3.4, 0), Vector(10.8, -3.4, 0)), False)
sketch7.addGeometry(Part.LineSegment(Vector(10.8, -3.4, 0), Vector(10.8, -0.6, 0)), False)
sketch7.addGeometry(Part.LineSegment(Vector(10.8, -0.6, 0), Vector(8.2, -0.6, 0)), False)
sketch7.addGeometry(Part.LineSegment(Vector(12, -0.6, 0), Vector(12, -3.4, 0)), False)
sketch7.addGeometry(Part.LineSegment(Vector(12, -3.4, 0), Vector(14.6, -3.4, 0)), False)
sketch7.addGeometry(Part.LineSegment(Vector(14.6, -3.4, 0), Vector(14.6, -0.6, 0)), False)
sketch7.addGeometry(Part.LineSegment(Vector(14.6, -0.6, 0), Vector(12, -0.6, 0)), False)
sketch7.addGeometry(Part.LineSegment(Vector(15.8, -0.6, 0), Vector(15.8, -3.4, 0)), False)
sketch7.addGeometry(Part.LineSegment(Vector(15.8, -3.4, 0), Vector(18.4, -3.4, 0)), False)
sketch7.addGeometry(Part.LineSegment(Vector(18.4, -3.4, 0), Vector(18.4, -0.6, 0)), False)
sketch7.addGeometry(Part.LineSegment(Vector(18.4, -0.6, 0), Vector(15.8, -0.6, 0)), False)
sketch7.addGeometry(Part.LineSegment(Vector(19.7, -0.6, 0), Vector(19.7, -3.4, 0)), False)
sketch7.addGeometry(Part.LineSegment(Vector(19.7, -3.4, 0), Vector(22.3, -3.4, 0)), False)
sketch7.addGeometry(Part.LineSegment(Vector(22.3, -3.4, 0), Vector(22.3, -0.6, 0)), False)
sketch7.addGeometry(Part.LineSegment(Vector(22.3, -0.6, 0), Vector(19.7, -0.6, 0)), False)
sketch7.addConstraint(Sketcher.Constraint("Coincident", 0, 2, 1, 1))
sketch7.addConstraint(Sketcher.Constraint("Coincident", 1, 2, 2, 1))
sketch7.addConstraint(Sketcher.Constraint("Coincident", 2, 2, 3, 1))
sketch7.addConstraint(Sketcher.Constraint("Coincident", 3, 2, 0, 1))
sketch7.addConstraint(Sketcher.Constraint("Coincident", 4, 2, 5, 1))
sketch7.addConstraint(Sketcher.Constraint("Coincident", 5, 2, 6, 1))
sketch7.addConstraint(Sketcher.Constraint("Coincident", 6, 2, 7, 1))
sketch7.addConstraint(Sketcher.Constraint("Coincident", 7, 2, 4, 1))
sketch7.addConstraint(Sketcher.Constraint("Coincident", 8, 2, 9, 1))
sketch7.addConstraint(Sketcher.Constraint("Coincident", 9, 2, 10, 1))
sketch7.addConstraint(Sketcher.Constraint("Coincident", 10, 2, 11, 1))
sketch7.addConstraint(Sketcher.Constraint("Coincident", 11, 2, 8, 1))
sketch7.addConstraint(Sketcher.Constraint("Coincident", 12, 2, 13, 1))
sketch7.addConstraint(Sketcher.Constraint("Coincident", 13, 2, 14, 1))
sketch7.addConstraint(Sketcher.Constraint("Coincident", 14, 2, 15, 1))
sketch7.addConstraint(Sketcher.Constraint("Coincident", 15, 2, 12, 1))
sketch7.addConstraint(Sketcher.Constraint("Coincident", 16, 2, 17, 1))
sketch7.addConstraint(Sketcher.Constraint("Coincident", 17, 2, 18, 1))
sketch7.addConstraint(Sketcher.Constraint("Coincident", 18, 2, 19, 1))
sketch7.addConstraint(Sketcher.Constraint("Coincident", 19, 2, 16, 1))
sketch7.addConstraint(Sketcher.Constraint("Coincident", 20, 2, 21, 1))
sketch7.addConstraint(Sketcher.Constraint("Coincident", 21, 2, 22, 1))
sketch7.addConstraint(Sketcher.Constraint("Coincident", 22, 2, 23, 1))
sketch7.addConstraint(Sketcher.Constraint("Coincident", 23, 2, 20, 1))
sketch7.addConstraint(Sketcher.Constraint("Coincident", 24, 2, 25, 1))
sketch7.addConstraint(Sketcher.Constraint("Coincident", 25, 2, 26, 1))
sketch7.addConstraint(Sketcher.Constraint("Coincident", 26, 2, 27, 1))
sketch7.addConstraint(Sketcher.Constraint("Coincident", 27, 2, 24, 1))
sketch7.addConstraint(Sketcher.Constraint("Coincident", 28, 2, 29, 1))
sketch7.addConstraint(Sketcher.Constraint("Coincident", 29, 2, 30, 1))
sketch7.addConstraint(Sketcher.Constraint("Coincident", 30, 2, 31, 1))
sketch7.addConstraint(Sketcher.Constraint("Coincident", 31, 2, 28, 1))
sketch7.addConstraint(Sketcher.Constraint("Coincident", 32, 2, 33, 1))
sketch7.addConstraint(Sketcher.Constraint("Coincident", 33, 2, 34, 1))
sketch7.addConstraint(Sketcher.Constraint("Coincident", 34, 2, 35, 1))
sketch7.addConstraint(Sketcher.Constraint("Coincident", 35, 2, 32, 1))
sketch7.addConstraint(Sketcher.Constraint("Coincident", 36, 2, 37, 1))
sketch7.addConstraint(Sketcher.Constraint("Coincident", 37, 2, 38, 1))
sketch7.addConstraint(Sketcher.Constraint("Coincident", 38, 2, 39, 1))
sketch7.addConstraint(Sketcher.Constraint("Coincident", 39, 2, 36, 1))
sketch7.addConstraint(Sketcher.Constraint("Coincident", 40, 2, 41, 1))
sketch7.addConstraint(Sketcher.Constraint("Coincident", 41, 2, 42, 1))
sketch7.addConstraint(Sketcher.Constraint("Coincident", 42, 2, 43, 1))
sketch7.addConstraint(Sketcher.Constraint("Coincident", 43, 2, 40, 1))
sketch7.addConstraint(Sketcher.Constraint("Coincident", 44, 2, 45, 1))
sketch7.addConstraint(Sketcher.Constraint("Coincident", 45, 2, 46, 1))
sketch7.addConstraint(Sketcher.Constraint("Coincident", 46, 2, 47, 1))
sketch7.addConstraint(Sketcher.Constraint("Coincident", 47, 2, 44, 1))
sketch7.addConstraint(Sketcher.Constraint("Vertical", 0))
sketch7.addConstraint(Sketcher.Constraint("Horizontal", 1))
sketch7.addConstraint(Sketcher.Constraint("Vertical", 2))
sketch7.addConstraint(Sketcher.Constraint("Horizontal", 3))
sketch7.addConstraint(Sketcher.Constraint("Vertical", 4))
sketch7.addConstraint(Sketcher.Constraint("Horizontal", 5))
sketch7.addConstraint(Sketcher.Constraint("Vertical", 6))
sketch7.addConstraint(Sketcher.Constraint("Horizontal", 7))
sketch7.addConstraint(Sketcher.Constraint("Vertical", 8))
sketch7.addConstraint(Sketcher.Constraint("Horizontal", 9))
sketch7.addConstraint(Sketcher.Constraint("Vertical", 10))
sketch7.addConstraint(Sketcher.Constraint("Horizontal", 11))
sketch7.addConstraint(Sketcher.Constraint("Vertical", 12))
sketch7.addConstraint(Sketcher.Constraint("Horizontal", 13))
sketch7.addConstraint(Sketcher.Constraint("Vertical", 14))
sketch7.addConstraint(Sketcher.Constraint("Horizontal", 15))
sketch7.addConstraint(Sketcher.Constraint("Vertical", 16))
sketch7.addConstraint(Sketcher.Constraint("Horizontal", 17))
sketch7.addConstraint(Sketcher.Constraint("Vertical", 18))
sketch7.addConstraint(Sketcher.Constraint("Horizontal", 19))
sketch7.addConstraint(Sketcher.Constraint("Vertical", 20))
sketch7.addConstraint(Sketcher.Constraint("Horizontal", 21))
sketch7.addConstraint(Sketcher.Constraint("Vertical", 22))
sketch7.addConstraint(Sketcher.Constraint("Horizontal", 23))
sketch7.addConstraint(Sketcher.Constraint("Vertical", 24))
sketch7.addConstraint(Sketcher.Constraint("Horizontal", 25))
sketch7.addConstraint(Sketcher.Constraint("Vertical", 26))
sketch7.addConstraint(Sketcher.Constraint("Horizontal", 27))
sketch7.addConstraint(Sketcher.Constraint("Vertical", 28))
sketch7.addConstraint(Sketcher.Constraint("Horizontal", 29))
sketch7.addConstraint(Sketcher.Constraint("Vertical", 30))
sketch7.addConstraint(Sketcher.Constraint("Horizontal", 31))
sketch7.addConstraint(Sketcher.Constraint("Vertical", 32))
sketch7.addConstraint(Sketcher.Constraint("Horizontal", 33))
sketch7.addConstraint(Sketcher.Constraint("Vertical", 34))
sketch7.addConstraint(Sketcher.Constraint("Horizontal", 35))
sketch7.addConstraint(Sketcher.Constraint("Vertical", 36))
sketch7.addConstraint(Sketcher.Constraint("Horizontal", 37))
sketch7.addConstraint(Sketcher.Constraint("Vertical", 38))
sketch7.addConstraint(Sketcher.Constraint("Horizontal", 39))
sketch7.addConstraint(Sketcher.Constraint("Vertical", 40))
sketch7.addConstraint(Sketcher.Constraint("Horizontal", 41))
sketch7.addConstraint(Sketcher.Constraint("Vertical", 42))
sketch7.addConstraint(Sketcher.Constraint("Horizontal", 43))
sketch7.addConstraint(Sketcher.Constraint("Vertical", 44))
sketch7.addConstraint(Sketcher.Constraint("Horizontal", 45))
sketch7.addConstraint(Sketcher.Constraint("Vertical", 46))
sketch7.addConstraint(Sketcher.Constraint("Horizontal", 47))
sketch7.addConstraint(Sketcher.Constraint("Symmetric", 21, 2, 24, 2, -2))
sketch7.addConstraint(Sketcher.Constraint("Symmetric", 23, 2, 26, 2, -2))
sketch7.addConstraint(Sketcher.Constraint("Symmetric", 17, 2, 28, 2, -2))
sketch7.addConstraint(Sketcher.Constraint("Symmetric", 19, 2, 30, 2, -2))
sketch7.addConstraint(Sketcher.Constraint("Symmetric", 13, 2, 32, 2, -2))
sketch7.addConstraint(Sketcher.Constraint("Symmetric", 15, 2, 34, 2, -2))
sketch7.addConstraint(Sketcher.Constraint("Symmetric", 9, 2, 36, 2, -2))
sketch7.addConstraint(Sketcher.Constraint("Symmetric", 11, 2, 38, 2, -2))
sketch7.addConstraint(Sketcher.Constraint("Symmetric", 5, 2, 40, 2, -2))
sketch7.addConstraint(Sketcher.Constraint("Symmetric", 7, 2, 42, 2, -2))
sketch7.addConstraint(Sketcher.Constraint("Symmetric", 1, 2, 44, 2, -2))
sketch7.addConstraint(Sketcher.Constraint("Symmetric", 3, 2, 46, 2, -2))
sketch7.addConstraint(Sketcher.Constraint("Horizontal", 1, 2, 4, 2))
sketch7.addConstraint(Sketcher.Constraint("Horizontal", 3, 2, 6, 2))
sketch7.addConstraint(Sketcher.Constraint("Horizontal", 5, 2, 8, 2))
sketch7.addConstraint(Sketcher.Constraint("Horizontal", 7, 2, 10, 2))
sketch7.addConstraint(Sketcher.Constraint("Horizontal", 9, 2, 12, 2))
sketch7.addConstraint(Sketcher.Constraint("Horizontal", 11, 2, 14, 2))
sketch7.addConstraint(Sketcher.Constraint("Horizontal", 13, 2, 16, 2))
sketch7.addConstraint(Sketcher.Constraint("Horizontal", 15, 2, 18, 2))
sketch7.addConstraint(Sketcher.Constraint("Horizontal", 17, 2, 20, 2))
sketch7.addConstraint(Sketcher.Constraint("Horizontal", 19, 2, 22, 2))
sketch7.addConstraint(Sketcher.Constraint("Equal", 3, 5))
sketch7.addConstraint(Sketcher.Constraint("Equal", 7, 9))
sketch7.addConstraint(Sketcher.Constraint("Equal", 11, 13))
sketch7.addConstraint(Sketcher.Constraint("Equal", 15, 17))
sketch7.addConstraint(Sketcher.Constraint("Equal", 19, 21))
sketch7.addConstraint(Sketcher.Constraint("DistanceX", 1, 1, 1, 2, Q("2.6 mm")))
sketch7.addConstraint(Sketcher.Constraint("DistanceY", 0, 2, 0, 1, Q("2.8 mm")))
sketch7.addConstraint(Sketcher.Constraint("DistanceY", 0, 2, -1, 1, Q("3.4 mm")))
sketch7.addConstraint(Sketcher.Constraint("DistanceX", 1, 2, 4, 2, Q("1.21 mm")))
sketch7.addConstraint(Sketcher.Constraint("DistanceX", 5, 2, 8, 2, Q("1.21 mm")))
sketch7.addConstraint(Sketcher.Constraint("DistanceX", 9, 2, 12, 2, Q("1.21 mm")))
sketch7.addConstraint(Sketcher.Constraint("DistanceX", 13, 2, 16, 2, Q("1.21 mm")))
sketch7.addConstraint(Sketcher.Constraint("DistanceX", 17, 2, 20, 2, Q("1.21 mm")))
sketch7.addConstraint(Sketcher.Constraint("DistanceX", 21, 2, 24, 2, Q("1.21 mm")))
sketch7.setExpression("Constraints[123]", "Params.sketch7_width")
sketch7.setExpression("Constraints[124]", "Params.sketch7_height")
pocket3 = body.newObject("PartDesign::Pocket", "Pocket002")
pocket3.Profile = sketch7
pocket3.setExpression("Length", "Params.pocket3_length")
pocket3.Reversed = True

sketch8 = body.newObject("Sketcher::SketchObject", "Sketch007")
sketch8.AttachmentSupport = (doc.getObject("XZ_Plane"), [""])
sketch8.MapMode = "FlatFace"
sketch8.AttachmentOffset = App.Placement(Vector(0, 0, -7), App.Rotation())
sketch8.addGeometry(Part.Circle(Vector(-21, -12, 0), Vector(0, 0, 1), 1.3), False)
sketch8.addGeometry(Part.Circle(Vector(-17.1, -12, 0), Vector(0, 0, 1), 1.3), False)
sketch8.addGeometry(Part.Circle(Vector(-13.3, -12, 0), Vector(0, 0, 1), 1.3), False)
sketch8.addGeometry(Part.Circle(Vector(-9.5, -12, 0), Vector(0, 0, 1), 1.3), False)
sketch8.addGeometry(Part.Circle(Vector(-5.7, -12, 0), Vector(0, 0, 1), 1.3), False)
sketch8.addGeometry(Part.Circle(Vector(-1.9, -12, 0), Vector(0, 0, 1), 1.3), False)
sketch8.addGeometry(Part.Circle(Vector(1.9, -12, 0), Vector(0, 0, 1), 1.3), False)
sketch8.addGeometry(Part.Circle(Vector(5.7, -12, 0), Vector(0, 0, 1), 1.3), False)
sketch8.addGeometry(Part.Circle(Vector(9.5, -12, 0), Vector(0, 0, 1), 1.3), False)
sketch8.addGeometry(Part.Circle(Vector(13.3, -12, 0), Vector(0, 0, 1), 1.3), False)
sketch8.addGeometry(Part.Circle(Vector(17.1, -12, 0), Vector(0, 0, 1), 1.3), False)
sketch8.addGeometry(Part.Circle(Vector(21, -12, 0), Vector(0, 0, 1), 1.3), False)
sketch8.addConstraint(Sketcher.Constraint("Equal", 0, 1))
sketch8.addConstraint(Sketcher.Constraint("Equal", 1, 2))
sketch8.addConstraint(Sketcher.Constraint("Equal", 2, 3))
sketch8.addConstraint(Sketcher.Constraint("Equal", 3, 4))
sketch8.addConstraint(Sketcher.Constraint("Equal", 4, 5))
sketch8.addConstraint(Sketcher.Constraint("Equal", 5, 6))
sketch8.addConstraint(Sketcher.Constraint("Equal", 6, 7))
sketch8.addConstraint(Sketcher.Constraint("Equal", 7, 8))
sketch8.addConstraint(Sketcher.Constraint("Equal", 8, 9))
sketch8.addConstraint(Sketcher.Constraint("Equal", 9, 10))
sketch8.addConstraint(Sketcher.Constraint("Equal", 10, 11))
sketch8.addConstraint(Sketcher.Constraint("Symmetric", 5, 3, 6, 3, -2))
sketch8.addConstraint(Sketcher.Constraint("Symmetric", 4, 3, 7, 3, -2))
sketch8.addConstraint(Sketcher.Constraint("Symmetric", 3, 3, 8, 3, -2))
sketch8.addConstraint(Sketcher.Constraint("Symmetric", 2, 3, 9, 3, -2))
sketch8.addConstraint(Sketcher.Constraint("Symmetric", 1, 3, 10, 3, -2))
sketch8.addConstraint(Sketcher.Constraint("Symmetric", 0, 3, 11, 3, -2))
sketch8.addConstraint(Sketcher.Constraint("Horizontal", 0, 3, 1, 3))
sketch8.addConstraint(Sketcher.Constraint("Horizontal", 1, 3, 2, 3))
sketch8.addConstraint(Sketcher.Constraint("Horizontal", 2, 3, 3, 3))
sketch8.addConstraint(Sketcher.Constraint("Horizontal", 3, 3, 4, 3))
sketch8.addConstraint(Sketcher.Constraint("Horizontal", 4, 3, 5, 3))
sketch8.addConstraint(Sketcher.Constraint("Diameter", 0, Q("2.6 mm")))
sketch8.addConstraint(Sketcher.Constraint("DistanceY", 0, 3, -1, 1, Q("12 mm")))
sketch8.addConstraint(Sketcher.Constraint("DistanceX", 0, 3, 1, 3, Q("3.81 mm")))
sketch8.addConstraint(Sketcher.Constraint("DistanceX", 1, 3, 2, 3, Q("3.81 mm")))
sketch8.addConstraint(Sketcher.Constraint("DistanceX", 2, 3, 3, 3, Q("3.81 mm")))
sketch8.addConstraint(Sketcher.Constraint("DistanceX", 3, 3, 4, 3, Q("3.81 mm")))
sketch8.addConstraint(Sketcher.Constraint("DistanceX", 4, 3, 5, 3, Q("3.81 mm")))
sketch8.addConstraint(Sketcher.Constraint("DistanceX", 5, 3, 6, 3, Q("3.81 mm")))
sketch8.setExpression("Constraints[22]", "Params.sketch8_diameter")
pocket4 = body.newObject("PartDesign::Pocket", "Pocket003")
pocket4.Profile = sketch8
pocket4.setExpression("Length", "Params.pocket4_length")
pocket4.Reversed = True

doc.recompute()
